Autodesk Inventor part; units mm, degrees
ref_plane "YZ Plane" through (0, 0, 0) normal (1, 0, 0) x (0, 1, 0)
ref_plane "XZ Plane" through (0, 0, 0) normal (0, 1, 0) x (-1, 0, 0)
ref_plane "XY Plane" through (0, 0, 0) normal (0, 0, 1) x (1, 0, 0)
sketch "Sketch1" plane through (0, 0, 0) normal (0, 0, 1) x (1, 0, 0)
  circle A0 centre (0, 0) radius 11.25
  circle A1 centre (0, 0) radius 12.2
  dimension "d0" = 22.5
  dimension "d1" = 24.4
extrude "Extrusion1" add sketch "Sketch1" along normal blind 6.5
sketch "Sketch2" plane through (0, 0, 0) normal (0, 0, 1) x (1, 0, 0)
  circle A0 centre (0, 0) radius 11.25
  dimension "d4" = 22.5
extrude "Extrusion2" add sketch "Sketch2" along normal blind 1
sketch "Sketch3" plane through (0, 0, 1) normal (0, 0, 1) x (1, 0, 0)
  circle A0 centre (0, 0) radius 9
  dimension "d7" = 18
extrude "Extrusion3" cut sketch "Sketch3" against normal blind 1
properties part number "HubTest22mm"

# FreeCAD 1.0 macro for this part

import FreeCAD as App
import Part
import Sketcher

V = App.Vector

doc = App.newDocument("Part")
body = doc.addObject("PartDesign::Body", "Body")

sketch1 = doc.addObject("Sketcher::SketchObject", "Sketch")
body.addObject(sketch1)
sketch1.AttachmentSupport = (doc.XY_Plane, [""])
sketch1.MapMode = "FlatFace"
sketch1.addGeometry([
    Part.Circle(V(0, 0, 0), V(0, 0, 1), 12.2),
    Part.Circle(V(0, 0, 0), V(0, 0, 1), 11.25),
], False)
sketch1.addConstraint([
    Sketcher.Constraint("Coincident", 0, 3, -1, 1),
    Sketcher.Constraint("Coincident", 1, 3, -1, 1),
    Sketcher.Constraint("Diameter", 0, 24.4),
    Sketcher.Constraint("Diameter", 1, 22.5),
])
pad1 = doc.addObject("PartDesign::Pad", "Pad")
body.addObject(pad1)
pad1.Profile = sketch1
pad1.Length = 6.5

sketch2 = doc.addObject("Sketcher::SketchObject", "Sketch001")
body.addObject(sketch2)
sketch2.AttachmentSupport = (doc.XY_Plane, [""])
sketch2.MapMode = "FlatFace"
sketch2.addGeometry(Part.Circle(V(0, 0, 0), V(0, 0, 1), 11.25), False)
sketch2.addConstraint([
    Sketcher.Constraint("Coincident", 0, 3, -1, 1),
    Sketcher.Constraint("Diameter", 0, 22.5),
])
pad2 = doc.addObject("PartDesign::Pad", "Pad001")
body.addObject(pad2)
pad2.Profile = sketch2
pad2.Length = 1

sketch3 = doc.addObject("Sketcher::SketchObject", "Sketch002")
body.addObject(sketch3)
sketch3.AttachmentSupport = (doc.XY_Plane, [""])
sketch3.MapMode = "FlatFace"
sketch3.AttachmentOffset = App.Placement(V(0, 0, 1), App.Rotation())
sketch3.addGeometry(Part.Circle(V(0, 0, 0), V(0, 0, 1), 9), False)
sketch3.addConstraint([
    Sketcher.Constraint("Coincident", 0, 3, -1, 1),
    Sketcher.Constraint("Diameter", 0, 18.0),
])
pocket1 = doc.addObject("PartDesign::Pocket", "Pocket")
body.addObject(pocket1)
pocket1.Profile = sketch3
pocket1.Length = 1

doc.recompute()
